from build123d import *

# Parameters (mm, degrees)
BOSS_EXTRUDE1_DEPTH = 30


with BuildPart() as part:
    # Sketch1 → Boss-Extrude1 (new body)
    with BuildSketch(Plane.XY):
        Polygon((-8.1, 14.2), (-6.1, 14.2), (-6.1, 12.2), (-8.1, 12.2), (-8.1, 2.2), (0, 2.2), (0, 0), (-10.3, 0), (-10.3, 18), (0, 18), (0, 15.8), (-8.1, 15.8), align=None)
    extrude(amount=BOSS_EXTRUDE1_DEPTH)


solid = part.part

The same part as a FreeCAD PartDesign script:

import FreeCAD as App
import Part
import Sketcher

V = App.Vector
Q = App.Units.Quantity


def add_polygon(sketch, points):
    """Adds a closed chain of lines whose ends are joined by coincident constraints."""
    first, n = sketch.GeometryCount, len(points)
    for a, b in zip(points, points[1:] + points[:1]):
        sketch.addGeometry(Part.LineSegment(App.Vector(*a, 0), App.Vector(*b, 0)), False)
    for i in range(n):
        sketch.addConstraint(Sketcher.Constraint("Coincident", first + i, 2, first + (i + 1) % n, 1))

doc = App.newDocument("Part")
body = doc.addObject("PartDesign::Body", "Body")

# Sketch on XY plane
sketch1 = body.newObject("Sketcher::SketchObject", "Sketch")
sketch1.AttachmentSupport = (doc.getObject("XY_Plane"), [""])
sketch1.MapMode = "FlatFace"
add_polygon(sketch1, [(-6.1, 14.2), (-8.1, 14.2), (-8.1, 15.8), (0, 15.8), (0, 18), (-10.3, 18), (-10.3, 0), (0, 0), (0, 2.2), (-8.1, 2.2), (-8.1, 12.2), (-6.1, 12.2)])  # lines 0-11
sketch1.addConstraint([
    Sketcher.Constraint("Horizontal", 0),
    Sketcher.Constraint("Vertical", 1),
    Sketcher.Constraint("Horizontal", 2),
    Sketcher.Constraint("Vertical", 3),
    Sketcher.Constraint("Horizontal", 4),
    Sketcher.Constraint("Vertical", 5),
    Sketcher.Constraint("Horizontal", 6),
    Sketcher.Constraint("Vertical", 7),
    Sketcher.Constraint("Horizontal", 8),
    Sketcher.Constraint("Vertical", 9),
    Sketcher.Constraint("Horizontal", 10),
    Sketcher.Constraint("Vertical", 11),
    Sketcher.Constraint("Coincident", 6, 2, -1, 1),
    Sketcher.Constraint("PointOnObject", 2, 2, -2),
    Sketcher.Constraint("Vertical", 1, 2, 8, 2),
    Sketcher.Constraint("Equal", 3, 7),
    Sketcher.Constraint("Equal", 10, 11),
    Sketcher.Constraint("DistanceX", 0, 2, 0, 1, Q("2 mm")),
    Sketcher.Constraint("DistanceY", 5, 2, 5, 1, Q("18 mm")),
    Sketcher.Constraint("DistanceY", 9, 1, 9, 2, Q("10 mm")),
    Sketcher.Constraint("DistanceX", 2, 1, 2, 2, Q("8.1 mm")),
    Sketcher.Constraint("DistanceX", 4, 2, 4, 1, Q("10.3 mm")),
    Sketcher.Constraint("DistanceY", 1, 1, 1, 2, Q("1.6 mm")),
])
pad1 = body.newObject("PartDesign::Pad", "Pad")
pad1.Profile = sketch1
pad1.Length = 30

doc.recompute()
